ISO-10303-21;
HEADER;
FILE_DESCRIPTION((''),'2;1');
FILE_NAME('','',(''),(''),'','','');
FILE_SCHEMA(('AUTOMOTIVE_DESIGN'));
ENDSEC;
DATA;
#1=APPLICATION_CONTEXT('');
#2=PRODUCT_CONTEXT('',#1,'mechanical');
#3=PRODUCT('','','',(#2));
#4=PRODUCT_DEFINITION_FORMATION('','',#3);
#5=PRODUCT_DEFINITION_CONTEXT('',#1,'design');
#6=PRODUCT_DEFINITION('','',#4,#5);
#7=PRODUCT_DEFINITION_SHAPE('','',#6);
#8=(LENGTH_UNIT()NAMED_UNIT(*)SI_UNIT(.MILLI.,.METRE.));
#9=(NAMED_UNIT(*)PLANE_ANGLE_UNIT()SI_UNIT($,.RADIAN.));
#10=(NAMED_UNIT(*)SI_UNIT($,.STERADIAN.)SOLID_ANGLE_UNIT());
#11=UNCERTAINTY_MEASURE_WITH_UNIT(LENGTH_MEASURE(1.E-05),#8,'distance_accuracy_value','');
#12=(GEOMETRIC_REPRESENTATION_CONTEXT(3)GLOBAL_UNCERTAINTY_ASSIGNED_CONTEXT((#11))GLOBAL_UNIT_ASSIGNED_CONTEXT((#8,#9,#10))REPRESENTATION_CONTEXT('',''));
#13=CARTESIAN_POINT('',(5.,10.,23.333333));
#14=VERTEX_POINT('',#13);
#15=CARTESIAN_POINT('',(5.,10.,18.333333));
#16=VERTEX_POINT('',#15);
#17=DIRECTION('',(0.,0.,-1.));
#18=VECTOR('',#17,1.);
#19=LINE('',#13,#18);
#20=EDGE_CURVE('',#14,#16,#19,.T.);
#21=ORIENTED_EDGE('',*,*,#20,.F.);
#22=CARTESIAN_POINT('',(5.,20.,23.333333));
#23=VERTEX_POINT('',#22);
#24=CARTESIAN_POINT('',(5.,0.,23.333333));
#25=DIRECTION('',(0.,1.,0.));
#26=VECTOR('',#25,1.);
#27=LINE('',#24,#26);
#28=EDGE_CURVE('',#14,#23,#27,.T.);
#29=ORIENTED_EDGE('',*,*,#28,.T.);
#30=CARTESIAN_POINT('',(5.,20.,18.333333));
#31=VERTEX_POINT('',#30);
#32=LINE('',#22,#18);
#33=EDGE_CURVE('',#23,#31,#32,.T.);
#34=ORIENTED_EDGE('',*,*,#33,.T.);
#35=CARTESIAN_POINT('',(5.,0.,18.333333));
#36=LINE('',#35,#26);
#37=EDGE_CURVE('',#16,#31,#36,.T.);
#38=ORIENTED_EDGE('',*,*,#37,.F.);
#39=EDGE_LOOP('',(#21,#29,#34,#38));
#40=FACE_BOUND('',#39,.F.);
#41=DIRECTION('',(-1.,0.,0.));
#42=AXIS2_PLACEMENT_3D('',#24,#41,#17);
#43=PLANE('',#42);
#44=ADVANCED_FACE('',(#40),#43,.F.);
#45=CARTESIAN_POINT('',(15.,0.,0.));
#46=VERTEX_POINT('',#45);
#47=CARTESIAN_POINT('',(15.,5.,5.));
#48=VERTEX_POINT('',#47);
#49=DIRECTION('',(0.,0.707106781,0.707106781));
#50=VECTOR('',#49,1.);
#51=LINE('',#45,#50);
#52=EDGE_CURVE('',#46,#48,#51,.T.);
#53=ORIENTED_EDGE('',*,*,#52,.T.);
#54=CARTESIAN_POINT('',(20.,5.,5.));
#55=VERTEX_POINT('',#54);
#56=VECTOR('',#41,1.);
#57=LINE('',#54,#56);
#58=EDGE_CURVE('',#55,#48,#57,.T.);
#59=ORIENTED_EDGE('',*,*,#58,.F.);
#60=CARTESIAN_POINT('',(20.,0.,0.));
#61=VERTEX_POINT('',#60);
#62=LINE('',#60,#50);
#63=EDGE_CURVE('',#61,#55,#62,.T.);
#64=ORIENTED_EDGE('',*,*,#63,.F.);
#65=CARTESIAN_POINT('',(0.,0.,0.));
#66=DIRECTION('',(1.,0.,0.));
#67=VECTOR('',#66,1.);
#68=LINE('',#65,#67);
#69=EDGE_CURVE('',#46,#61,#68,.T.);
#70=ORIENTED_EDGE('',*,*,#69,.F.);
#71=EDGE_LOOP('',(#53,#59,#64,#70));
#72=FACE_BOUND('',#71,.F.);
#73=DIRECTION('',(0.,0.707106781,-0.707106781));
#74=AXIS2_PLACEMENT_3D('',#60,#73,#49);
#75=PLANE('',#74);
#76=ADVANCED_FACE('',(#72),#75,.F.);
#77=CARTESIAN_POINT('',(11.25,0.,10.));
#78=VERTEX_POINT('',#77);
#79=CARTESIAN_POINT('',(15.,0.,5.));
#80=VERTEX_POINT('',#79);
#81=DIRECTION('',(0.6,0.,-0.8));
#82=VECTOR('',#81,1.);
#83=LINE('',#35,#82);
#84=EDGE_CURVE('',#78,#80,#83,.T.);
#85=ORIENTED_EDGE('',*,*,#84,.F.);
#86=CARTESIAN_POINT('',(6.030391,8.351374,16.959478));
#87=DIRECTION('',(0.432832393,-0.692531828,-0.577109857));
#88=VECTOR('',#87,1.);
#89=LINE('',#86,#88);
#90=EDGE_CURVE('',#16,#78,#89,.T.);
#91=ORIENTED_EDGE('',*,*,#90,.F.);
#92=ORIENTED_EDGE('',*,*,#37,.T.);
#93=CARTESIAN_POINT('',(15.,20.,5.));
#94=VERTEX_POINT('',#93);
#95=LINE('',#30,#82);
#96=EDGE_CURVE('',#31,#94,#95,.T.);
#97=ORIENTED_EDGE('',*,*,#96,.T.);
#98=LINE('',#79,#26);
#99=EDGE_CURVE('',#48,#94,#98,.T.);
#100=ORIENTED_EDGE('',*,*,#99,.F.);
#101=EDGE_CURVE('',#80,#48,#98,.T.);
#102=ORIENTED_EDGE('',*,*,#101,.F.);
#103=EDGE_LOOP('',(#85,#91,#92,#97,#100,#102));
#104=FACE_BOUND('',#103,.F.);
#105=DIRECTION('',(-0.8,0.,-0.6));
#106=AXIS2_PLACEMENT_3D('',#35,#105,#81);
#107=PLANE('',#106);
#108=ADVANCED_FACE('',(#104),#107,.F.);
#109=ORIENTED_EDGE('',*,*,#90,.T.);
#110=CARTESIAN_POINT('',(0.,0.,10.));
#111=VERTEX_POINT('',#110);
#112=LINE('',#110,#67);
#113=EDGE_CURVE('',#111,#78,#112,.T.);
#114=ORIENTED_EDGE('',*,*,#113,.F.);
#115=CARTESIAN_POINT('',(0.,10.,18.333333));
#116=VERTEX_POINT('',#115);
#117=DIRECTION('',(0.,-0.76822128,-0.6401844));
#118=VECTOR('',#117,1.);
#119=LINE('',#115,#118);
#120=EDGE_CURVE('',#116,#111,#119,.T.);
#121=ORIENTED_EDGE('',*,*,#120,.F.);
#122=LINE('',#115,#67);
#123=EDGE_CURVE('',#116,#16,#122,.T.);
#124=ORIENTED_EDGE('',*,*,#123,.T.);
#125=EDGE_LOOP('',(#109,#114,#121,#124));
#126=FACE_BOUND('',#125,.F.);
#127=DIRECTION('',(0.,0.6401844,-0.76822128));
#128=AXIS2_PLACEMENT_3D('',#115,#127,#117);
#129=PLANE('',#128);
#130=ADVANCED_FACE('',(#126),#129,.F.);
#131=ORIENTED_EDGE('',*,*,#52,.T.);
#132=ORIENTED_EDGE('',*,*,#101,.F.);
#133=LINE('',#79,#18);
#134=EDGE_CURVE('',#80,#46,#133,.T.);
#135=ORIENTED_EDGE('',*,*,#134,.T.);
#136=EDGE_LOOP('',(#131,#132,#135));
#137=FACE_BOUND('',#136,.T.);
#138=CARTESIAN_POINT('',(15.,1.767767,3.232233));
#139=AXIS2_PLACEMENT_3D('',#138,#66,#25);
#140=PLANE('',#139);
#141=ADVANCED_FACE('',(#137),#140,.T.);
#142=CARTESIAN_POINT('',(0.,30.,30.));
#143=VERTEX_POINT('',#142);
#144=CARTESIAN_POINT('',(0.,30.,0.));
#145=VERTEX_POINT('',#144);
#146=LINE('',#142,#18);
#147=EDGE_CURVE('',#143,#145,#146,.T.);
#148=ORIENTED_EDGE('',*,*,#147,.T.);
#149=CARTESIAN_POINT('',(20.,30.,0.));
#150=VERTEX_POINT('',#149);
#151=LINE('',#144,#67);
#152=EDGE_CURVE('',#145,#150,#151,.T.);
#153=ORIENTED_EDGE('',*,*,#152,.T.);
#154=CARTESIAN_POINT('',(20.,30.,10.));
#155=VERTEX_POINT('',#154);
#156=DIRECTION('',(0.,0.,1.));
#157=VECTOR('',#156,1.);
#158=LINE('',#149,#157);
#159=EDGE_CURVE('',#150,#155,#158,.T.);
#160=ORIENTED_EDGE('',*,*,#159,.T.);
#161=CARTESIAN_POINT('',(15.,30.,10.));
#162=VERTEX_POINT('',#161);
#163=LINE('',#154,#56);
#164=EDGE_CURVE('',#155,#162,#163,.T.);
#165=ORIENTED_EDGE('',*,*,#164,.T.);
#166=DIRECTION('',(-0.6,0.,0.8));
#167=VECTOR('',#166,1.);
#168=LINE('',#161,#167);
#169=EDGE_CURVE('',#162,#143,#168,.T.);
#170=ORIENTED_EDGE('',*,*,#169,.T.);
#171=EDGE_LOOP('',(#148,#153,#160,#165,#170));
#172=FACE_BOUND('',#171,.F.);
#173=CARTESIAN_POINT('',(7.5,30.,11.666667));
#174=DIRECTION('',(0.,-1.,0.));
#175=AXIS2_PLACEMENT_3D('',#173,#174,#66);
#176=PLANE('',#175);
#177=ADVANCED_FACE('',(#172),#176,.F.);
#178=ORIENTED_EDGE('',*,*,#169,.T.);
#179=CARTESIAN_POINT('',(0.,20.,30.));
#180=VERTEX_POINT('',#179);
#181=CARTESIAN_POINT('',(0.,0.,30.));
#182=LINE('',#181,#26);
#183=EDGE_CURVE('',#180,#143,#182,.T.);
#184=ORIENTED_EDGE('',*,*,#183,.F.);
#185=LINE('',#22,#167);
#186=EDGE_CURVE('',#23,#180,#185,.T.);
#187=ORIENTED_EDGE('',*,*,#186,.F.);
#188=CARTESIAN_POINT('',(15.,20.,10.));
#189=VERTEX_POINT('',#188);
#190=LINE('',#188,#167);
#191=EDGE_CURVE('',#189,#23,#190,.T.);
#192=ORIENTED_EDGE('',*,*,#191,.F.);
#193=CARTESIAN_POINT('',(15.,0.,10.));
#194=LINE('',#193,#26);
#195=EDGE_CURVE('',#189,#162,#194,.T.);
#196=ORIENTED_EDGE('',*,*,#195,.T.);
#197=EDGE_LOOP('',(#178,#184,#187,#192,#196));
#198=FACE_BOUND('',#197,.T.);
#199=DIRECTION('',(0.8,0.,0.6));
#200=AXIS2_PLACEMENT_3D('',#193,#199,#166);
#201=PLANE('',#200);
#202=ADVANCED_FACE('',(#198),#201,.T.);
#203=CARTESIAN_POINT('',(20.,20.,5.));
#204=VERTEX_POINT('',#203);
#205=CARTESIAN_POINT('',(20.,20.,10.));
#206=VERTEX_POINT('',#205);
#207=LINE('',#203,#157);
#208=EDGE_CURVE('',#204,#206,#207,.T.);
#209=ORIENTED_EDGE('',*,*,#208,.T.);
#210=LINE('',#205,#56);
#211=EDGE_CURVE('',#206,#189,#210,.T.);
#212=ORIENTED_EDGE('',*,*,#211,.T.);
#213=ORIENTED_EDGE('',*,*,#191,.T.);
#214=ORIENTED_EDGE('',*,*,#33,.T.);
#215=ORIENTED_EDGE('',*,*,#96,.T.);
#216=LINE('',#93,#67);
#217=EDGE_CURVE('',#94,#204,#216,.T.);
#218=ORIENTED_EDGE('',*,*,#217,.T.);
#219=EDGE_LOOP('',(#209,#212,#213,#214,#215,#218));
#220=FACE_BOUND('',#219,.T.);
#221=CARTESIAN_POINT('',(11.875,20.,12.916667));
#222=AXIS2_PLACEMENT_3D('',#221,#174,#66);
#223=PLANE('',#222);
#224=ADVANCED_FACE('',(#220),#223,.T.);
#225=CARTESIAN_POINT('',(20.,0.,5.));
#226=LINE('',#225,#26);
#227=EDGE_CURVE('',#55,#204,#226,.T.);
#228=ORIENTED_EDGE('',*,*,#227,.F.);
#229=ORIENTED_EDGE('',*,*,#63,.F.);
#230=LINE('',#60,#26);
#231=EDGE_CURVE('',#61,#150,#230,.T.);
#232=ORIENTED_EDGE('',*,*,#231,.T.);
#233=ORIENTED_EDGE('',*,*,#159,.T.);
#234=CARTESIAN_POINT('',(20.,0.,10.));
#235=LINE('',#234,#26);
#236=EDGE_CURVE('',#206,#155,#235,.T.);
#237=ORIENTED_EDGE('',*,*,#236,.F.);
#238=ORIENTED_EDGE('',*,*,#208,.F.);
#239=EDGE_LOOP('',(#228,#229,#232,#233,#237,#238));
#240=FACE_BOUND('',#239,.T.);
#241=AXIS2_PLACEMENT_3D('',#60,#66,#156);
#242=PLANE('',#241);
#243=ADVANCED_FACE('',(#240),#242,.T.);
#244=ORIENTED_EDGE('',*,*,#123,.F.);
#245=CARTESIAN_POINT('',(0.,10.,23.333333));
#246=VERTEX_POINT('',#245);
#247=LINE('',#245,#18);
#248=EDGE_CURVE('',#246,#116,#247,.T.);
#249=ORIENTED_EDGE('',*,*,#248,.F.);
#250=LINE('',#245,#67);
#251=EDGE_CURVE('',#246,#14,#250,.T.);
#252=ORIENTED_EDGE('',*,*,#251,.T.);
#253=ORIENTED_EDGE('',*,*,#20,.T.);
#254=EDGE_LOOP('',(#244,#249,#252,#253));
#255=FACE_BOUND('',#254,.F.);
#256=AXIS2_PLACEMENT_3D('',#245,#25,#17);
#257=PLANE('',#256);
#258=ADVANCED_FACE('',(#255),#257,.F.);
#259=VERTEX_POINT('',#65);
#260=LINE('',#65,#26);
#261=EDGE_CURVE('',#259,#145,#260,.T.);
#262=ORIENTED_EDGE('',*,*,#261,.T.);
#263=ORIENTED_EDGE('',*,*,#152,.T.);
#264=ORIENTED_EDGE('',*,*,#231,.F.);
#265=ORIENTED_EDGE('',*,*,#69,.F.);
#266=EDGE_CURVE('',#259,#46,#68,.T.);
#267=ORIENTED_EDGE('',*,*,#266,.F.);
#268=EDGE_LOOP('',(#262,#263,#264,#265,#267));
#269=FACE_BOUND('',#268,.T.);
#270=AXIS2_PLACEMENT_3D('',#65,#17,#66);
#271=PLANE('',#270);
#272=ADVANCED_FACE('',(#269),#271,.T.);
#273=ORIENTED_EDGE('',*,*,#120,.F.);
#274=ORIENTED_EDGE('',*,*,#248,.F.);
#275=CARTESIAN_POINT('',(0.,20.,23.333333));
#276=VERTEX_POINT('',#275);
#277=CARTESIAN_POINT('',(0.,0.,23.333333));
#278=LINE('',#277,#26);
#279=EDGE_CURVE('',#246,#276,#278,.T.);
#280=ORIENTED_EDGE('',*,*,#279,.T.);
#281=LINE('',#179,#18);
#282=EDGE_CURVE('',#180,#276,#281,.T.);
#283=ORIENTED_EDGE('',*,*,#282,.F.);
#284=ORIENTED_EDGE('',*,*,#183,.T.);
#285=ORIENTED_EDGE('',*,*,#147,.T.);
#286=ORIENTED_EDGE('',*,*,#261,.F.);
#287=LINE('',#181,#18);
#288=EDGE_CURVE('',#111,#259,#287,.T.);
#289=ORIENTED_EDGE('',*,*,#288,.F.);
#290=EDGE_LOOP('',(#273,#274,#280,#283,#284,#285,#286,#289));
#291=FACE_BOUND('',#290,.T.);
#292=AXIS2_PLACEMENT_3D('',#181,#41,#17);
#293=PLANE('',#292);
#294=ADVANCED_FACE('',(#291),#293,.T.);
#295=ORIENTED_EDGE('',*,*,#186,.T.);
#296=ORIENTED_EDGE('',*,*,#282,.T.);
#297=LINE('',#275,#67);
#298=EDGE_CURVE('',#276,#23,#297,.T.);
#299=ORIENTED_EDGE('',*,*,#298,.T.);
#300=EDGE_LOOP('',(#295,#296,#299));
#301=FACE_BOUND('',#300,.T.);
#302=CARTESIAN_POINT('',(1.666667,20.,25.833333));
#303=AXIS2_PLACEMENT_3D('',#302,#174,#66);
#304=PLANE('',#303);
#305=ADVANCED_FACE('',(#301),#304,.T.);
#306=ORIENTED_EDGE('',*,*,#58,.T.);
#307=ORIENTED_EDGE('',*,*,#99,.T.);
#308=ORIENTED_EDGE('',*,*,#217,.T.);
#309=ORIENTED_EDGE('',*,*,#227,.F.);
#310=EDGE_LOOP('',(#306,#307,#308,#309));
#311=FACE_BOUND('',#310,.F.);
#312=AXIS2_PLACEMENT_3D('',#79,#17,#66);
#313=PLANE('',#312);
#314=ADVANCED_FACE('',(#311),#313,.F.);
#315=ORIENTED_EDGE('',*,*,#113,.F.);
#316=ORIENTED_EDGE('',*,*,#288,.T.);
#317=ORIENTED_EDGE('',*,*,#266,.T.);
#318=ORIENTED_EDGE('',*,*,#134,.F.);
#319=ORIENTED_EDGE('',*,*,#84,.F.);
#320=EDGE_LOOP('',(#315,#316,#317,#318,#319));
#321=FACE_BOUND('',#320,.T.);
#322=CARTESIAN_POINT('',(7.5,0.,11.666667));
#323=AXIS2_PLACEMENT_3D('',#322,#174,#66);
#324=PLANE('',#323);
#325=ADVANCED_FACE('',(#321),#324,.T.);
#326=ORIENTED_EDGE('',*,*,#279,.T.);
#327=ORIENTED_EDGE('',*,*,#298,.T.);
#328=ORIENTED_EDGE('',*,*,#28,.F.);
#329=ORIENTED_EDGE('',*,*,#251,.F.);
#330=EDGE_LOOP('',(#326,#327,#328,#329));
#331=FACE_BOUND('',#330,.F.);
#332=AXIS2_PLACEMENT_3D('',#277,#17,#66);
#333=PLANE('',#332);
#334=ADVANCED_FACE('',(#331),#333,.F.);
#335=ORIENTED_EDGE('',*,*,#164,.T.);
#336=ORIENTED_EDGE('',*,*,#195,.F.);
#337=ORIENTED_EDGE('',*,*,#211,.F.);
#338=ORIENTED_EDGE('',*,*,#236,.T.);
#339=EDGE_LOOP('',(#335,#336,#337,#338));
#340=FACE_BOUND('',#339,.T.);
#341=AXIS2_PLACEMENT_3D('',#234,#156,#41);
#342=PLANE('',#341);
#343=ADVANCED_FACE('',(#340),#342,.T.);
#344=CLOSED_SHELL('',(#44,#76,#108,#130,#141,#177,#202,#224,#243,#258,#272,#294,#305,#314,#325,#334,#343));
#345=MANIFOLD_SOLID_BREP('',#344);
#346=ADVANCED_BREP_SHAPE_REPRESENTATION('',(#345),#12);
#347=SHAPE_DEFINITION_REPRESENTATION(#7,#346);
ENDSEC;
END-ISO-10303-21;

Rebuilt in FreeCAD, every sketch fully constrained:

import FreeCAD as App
import Part
import Sketcher

doc = App.newDocument("Part")
body = doc.addObject("PartDesign::Body", "Body")

# Sketch on XZ plane
sketch1 = body.newObject("Sketcher::SketchObject", "Sketch")
sketch1.AttachmentSupport = (doc.getObject("XZ_Plane"), [""])
sketch1.MapMode = "FlatFace"
sketch1.addGeometry([
    Part.LineSegment(App.Vector(0, 30, 0), App.Vector(0, 0, 0)),  # 0
    Part.LineSegment(App.Vector(0, 0, 0), App.Vector(20, 0, 0)),  # 1
    Part.LineSegment(App.Vector(20, 0, 0), App.Vector(20, 10, 0)),  # 2
    Part.LineSegment(App.Vector(20, 10, 0), App.Vector(15, 10, 0)),  # 3
    Part.LineSegment(App.Vector(15, 10, 0), App.Vector(0, 30, 0)),  # 4
], False)
sketch1.addConstraint([
    Sketcher.Constraint("Coincident", 0, 2, 1, 1),
    Sketcher.Constraint("Coincident", 1, 2, 2, 1),
    Sketcher.Constraint("Coincident", 2, 2, 3, 1),
    Sketcher.Constraint("Coincident", 3, 2, 4, 1),
    Sketcher.Constraint("Coincident", 4, 2, 0, 1),
    Sketcher.Constraint("Vertical", 0),
    Sketcher.Constraint("Horizontal", 1),
    Sketcher.Constraint("Vertical", 2),
    Sketcher.Constraint("Horizontal", 3),
    Sketcher.Constraint("Coincident", 0, 2, -1, 1),
    Sketcher.Constraint("DistanceX", 1, 1, 1, 2, 20.0),
    Sketcher.Constraint("DistanceX", 3, 2, 3, 1, 5.0),
    Sketcher.Constraint("DistanceY", 0, 2, 0, 1, 30.0),
    Sketcher.Constraint("DistanceY", 2, 1, 2, 2, 10.0),
])
pad1 = body.newObject("PartDesign::Pad", "Pad")
pad1.Profile = sketch1
pad1.Length = 30
pad1.Reversed = True

# Sketch on XZ plane
sketch2 = body.newObject("Sketcher::SketchObject", "Sketch001")
sketch2.AttachmentSupport = (doc.getObject("XZ_Plane"), [""])
sketch2.MapMode = "FlatFace"
sketch2.addGeometry([
    Part.LineSegment(App.Vector(0, 30, 0), App.Vector(0, 23.333333, 0)),  # 0
    Part.LineSegment(App.Vector(0, 23.333333, 0), App.Vector(5, 23.333333, 0)),  # 1
    Part.LineSegment(App.Vector(5, 23.333333, 0), App.Vector(0, 30, 0)),  # 2
    Part.LineSegment(App.Vector(15, 10, 0), App.Vector(5, 23.333333, 0)),  # 3
    Part.LineSegment(App.Vector(5, 23.333333, 0), App.Vector(5, 18.333333, 0)),  # 4
    Part.LineSegment(App.Vector(5, 18.333333, 0), App.Vector(15, 5, 0)),  # 5
    Part.LineSegment(App.Vector(15, 5, 0), App.Vector(20, 5, 0)),  # 6
    Part.LineSegment(App.Vector(20, 5, 0), App.Vector(20, 10, 0)),  # 7
    Part.LineSegment(App.Vector(20, 10, 0), App.Vector(15, 10, 0)),  # 8
], False)
sketch2.addConstraint([
    Sketcher.Constraint("Coincident", 0, 2, 1, 1),
    Sketcher.Constraint("Coincident", 1, 2, 2, 1),
    Sketcher.Constraint("Coincident", 2, 2, 0, 1),
    Sketcher.Constraint("Coincident", 3, 2, 4, 1),
    Sketcher.Constraint("Coincident", 4, 2, 5, 1),
    Sketcher.Constraint("Coincident", 5, 2, 6, 1),
    Sketcher.Constraint("Coincident", 6, 2, 7, 1),
    Sketcher.Constraint("Coincident", 7, 2, 8, 1),
    Sketcher.Constraint("Coincident", 8, 2, 3, 1),
    Sketcher.Constraint("Vertical", 0),
    Sketcher.Constraint("Horizontal", 1),
    Sketcher.Constraint("Vertical", 4),
    Sketcher.Constraint("Horizontal", 6),
    Sketcher.Constraint("Vertical", 7),
    Sketcher.Constraint("Horizontal", 8),
    Sketcher.Constraint("Coincident", 3, 2, 1, 2),
    Sketcher.Constraint("PointOnObject", 0, 2, -2),
    Sketcher.Constraint("Parallel", 2, 3),
    Sketcher.Constraint("Parallel", 3, 5),
    Sketcher.Constraint("Vertical", 5, 2, 8, 2),
    Sketcher.Constraint("Equal", 1, 6),
    Sketcher.Constraint("Equal", 8, 4),
    Sketcher.Constraint("DistanceX", 1, 1, 1, 2, 5.0),
    Sketcher.Constraint("DistanceY", -1, 1, 2, 2, 30.0),
    Sketcher.Constraint("DistanceX", -1, 1, 5, 2, 15.0),
    Sketcher.Constraint("DistanceY", -1, 1, 5, 2, 5.0),
])
pocket1 = body.newObject("PartDesign::Pocket", "Pocket")
pocket1.Profile = sketch2
pocket1.Length = 20

# Sketch on YZ plane
sketch3 = body.newObject("Sketcher::SketchObject", "Sketch002")
sketch3.AttachmentSupport = (doc.getObject("YZ_Plane"), [""])
sketch3.MapMode = "FlatFace"
sketch3.addGeometry([
    Part.LineSegment(App.Vector(0, 23.333333, 0), App.Vector(10, 23.333333, 0)),
    Part.LineSegment(App.Vector(10, 23.333333, 0), App.Vector(10, 18.333333, 0)),
    Part.LineSegment(App.Vector(10, 18.333333, 0), App.Vector(0, 10, 0)),
    Part.LineSegment(App.Vector(0, 10, 0), App.Vector(0, 23.333333, 0)),
], False)
sketch3.addConstraint([
    Sketcher.Constraint("Coincident", 0, 2, 1, 1),
    Sketcher.Constraint("Coincident", 1, 2, 2, 1),
    Sketcher.Constraint("Coincident", 2, 2, 3, 1),
    Sketcher.Constraint("Coincident", 3, 2, 0, 1),
    Sketcher.Constraint("Horizontal", 0),
    Sketcher.Constraint("Vertical", 1),
    Sketcher.Constraint("Vertical", 3),
    Sketcher.Constraint("PointOnObject", 2, 2, -2),
    Sketcher.Constraint("DistanceX", 0, 1, 0, 2, 10.0),
    Sketcher.Constraint("DistanceY", 1, 2, 1, 1, 5.0),
    Sketcher.Constraint("DistanceY", -1, 1, 2, 2, 10.0),
    Sketcher.Constraint("DistanceY", 3, 1, 3, 2, 13.333333),
])
pocket2 = body.newObject("PartDesign::Pocket", "Pocket001")
pocket2.Profile = sketch3
pocket2.Type = "ThroughAll"
pocket2.Reversed = True

# Sketch on YZ plane
sketch4 = body.newObject("Sketcher::SketchObject", "Sketch003")
sketch4.AttachmentSupport = (doc.getObject("YZ_Plane"), [""])
sketch4.MapMode = "FlatFace"
sketch4.AttachmentOffset = App.Placement(App.Vector(0, 0, 20), App.Rotation())
sketch4.addGeometry([
    Part.LineSegment(App.Vector(0, 5, 0), App.Vector(0, 0, 0)),
    Part.LineSegment(App.Vector(0, 0, 0), App.Vector(5, 5, 0)),
    Part.LineSegment(App.Vector(5, 5, 0), App.Vector(0, 5, 0)),
], False)
sketch4.addConstraint([
    Sketcher.Constraint("Coincident", 0, 2, 1, 1),
    Sketcher.Constraint("Coincident", 1, 2, 2, 1),
    Sketcher.Constraint("Coincident", 2, 2, 0, 1),
    Sketcher.Constraint("Vertical", 0),
    Sketcher.Constraint("Horizontal", 2),
    Sketcher.Constraint("Coincident", 0, 2, -1, 1),
    Sketcher.Constraint("Equal", 2, 0),
    Sketcher.Constraint("DistanceX", 2, 2, 2, 1, 5.0),
])
pocket3 = body.newObject("PartDesign::Pocket", "Pocket002")
pocket3.Profile = sketch4
pocket3.Length = 5

doc.recompute()
